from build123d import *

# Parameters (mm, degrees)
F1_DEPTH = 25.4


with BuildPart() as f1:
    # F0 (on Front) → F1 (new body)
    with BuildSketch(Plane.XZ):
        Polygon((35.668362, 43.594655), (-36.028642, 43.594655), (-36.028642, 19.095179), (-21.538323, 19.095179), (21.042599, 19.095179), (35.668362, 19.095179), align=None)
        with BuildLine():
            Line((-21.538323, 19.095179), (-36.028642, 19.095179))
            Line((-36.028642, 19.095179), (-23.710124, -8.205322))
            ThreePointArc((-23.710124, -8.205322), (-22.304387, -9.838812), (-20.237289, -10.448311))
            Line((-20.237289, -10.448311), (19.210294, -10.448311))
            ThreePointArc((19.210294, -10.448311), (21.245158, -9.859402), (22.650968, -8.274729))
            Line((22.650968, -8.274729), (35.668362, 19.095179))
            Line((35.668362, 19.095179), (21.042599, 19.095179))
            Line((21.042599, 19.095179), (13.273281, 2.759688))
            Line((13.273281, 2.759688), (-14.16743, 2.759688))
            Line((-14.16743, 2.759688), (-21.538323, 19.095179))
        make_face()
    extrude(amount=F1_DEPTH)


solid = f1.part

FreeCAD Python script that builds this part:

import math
import FreeCAD as App
import Part
import Sketcher

V = App.Vector
Q = App.Units.Quantity

doc = App.newDocument("Part")
body = doc.addObject("PartDesign::Body", "Body")

# Sketch on XZ plane
sketch1 = body.newObject("Sketcher::SketchObject", "Sketch")
sketch1.AttachmentSupport = (doc.getObject("XZ_Plane"), [""])
sketch1.MapMode = "FlatFace"
sketch1.addGeometry([
    Part.LineSegment(V(35.668362, 43.594655, 0), V(-36.028642, 43.594655, 0)),  # 0
    Part.LineSegment(V(-36.028642, 43.594655, 0), V(-36.028642, 19.095179, 0)),  # 1
    Part.LineSegment(V(-36.028642, 19.095179, 0), V(-23.710124, -8.205322, 0)),  # 2
    Part.ArcOfCircle(Part.Circle(V(-20.237289, -6.638309, 0), V(0, 0, 1), 3.810002), math.radians(-155.714148), math.radians(-90.000006)),  # 3
    Part.LineSegment(V(-20.237289, -10.448311, 0), V(19.210294, -10.448311, 0)),  # 4
    Part.ArcOfCircle(Part.Circle(V(19.210293, -6.638309, 0), V(0, 0, 1), 3.810002), math.radians(-89.999989), math.radians(-25.436231)),  # 5
    Part.LineSegment(V(22.650968, -8.274729, 0), V(35.668362, 19.095179, 0)),  # 6
    Part.LineSegment(V(35.668362, 19.095179, 0), V(35.668362, 43.594655, 0)),  # 7
    Part.LineSegment(V(-21.538323, 19.095179, 0), V(21.042599, 19.095179, 0)),  # 8
    Part.LineSegment(V(21.042599, 19.095179, 0), V(13.273281, 2.759688, 0)),  # 9
    Part.LineSegment(V(13.273281, 2.759688, 0), V(-14.16743, 2.759688, 0)),  # 10
    Part.LineSegment(V(-14.16743, 2.759688, 0), V(-21.538323, 19.095179, 0)),  # 11
], False)
sketch1.addConstraint([
    Sketcher.Constraint("Coincident", 0, 2, 1, 1),
    Sketcher.Constraint("Coincident", 1, 2, 2, 1),
    Sketcher.Constraint("Tangent", 2, 2, 3, 1),
    Sketcher.Constraint("Tangent", 3, 2, 4, 1),
    Sketcher.Constraint("Tangent", 4, 2, 5, 1),
    Sketcher.Constraint("Tangent", 5, 2, 6, 1),
    Sketcher.Constraint("Coincident", 6, 2, 7, 1),
    Sketcher.Constraint("Coincident", 7, 2, 0, 1),
    Sketcher.Constraint("Coincident", 8, 2, 9, 1),
    Sketcher.Constraint("Coincident", 9, 2, 10, 1),
    Sketcher.Constraint("Coincident", 10, 2, 11, 1),
    Sketcher.Constraint("Coincident", 11, 2, 8, 1),
    Sketcher.Constraint("Horizontal", 0),
    Sketcher.Constraint("Vertical", 1),
    Sketcher.Constraint("Horizontal", 4),
    Sketcher.Constraint("Vertical", 7),
    Sketcher.Constraint("Horizontal", 8),
    Sketcher.Constraint("Horizontal", 10),
    Sketcher.Constraint("Equal", 3, 5),
    Sketcher.Constraint("Parallel", 6, 9),
    Sketcher.Constraint("Parallel", 2, 11),
    Sketcher.Constraint("Horizontal", 1, 2, 6, 2),
    Sketcher.Constraint("Horizontal", 6, 2, 8, 2),
    Sketcher.Constraint("Radius", 3, Q("0.1500001 in")),
    Sketcher.Constraint("DistanceY", 5, 3, 9, 2, Q("0.3699999 in")),
    Sketcher.Constraint("DistanceX", 10, 2, 10, 1, Q("27.440711 mm")),
    Sketcher.Constraint("DistanceX", -1, 1, 8, 2, Q("21.042599 mm")),
    Sketcher.Constraint("DistanceY", 2, 2, 1, 2, Q("27.300501 mm")),
    Sketcher.Constraint("DistanceX", 2, 2, 11, 2, Q("2.171801 mm")),
    Sketcher.Constraint("Distance", 11, Q("17.921449 mm")),
    Sketcher.Constraint("DistanceX", 0, 2, 0, 1, Q("71.697004 mm")),
    Sketcher.Constraint("DistanceX", 4, 1, 4, 2, Q("39.447583 mm")),
    Sketcher.Constraint("DistanceY", 1, 2, 1, 1, Q("24.499476 mm")),
    Sketcher.Constraint("DistanceY", 3, 3, -1, 1, Q("6.638309 mm")),
])
pad1 = body.newObject("PartDesign::Pad", "Pad")
pad1.Profile = sketch1
pad1.Length = Q("1 in")

doc.recompute()
